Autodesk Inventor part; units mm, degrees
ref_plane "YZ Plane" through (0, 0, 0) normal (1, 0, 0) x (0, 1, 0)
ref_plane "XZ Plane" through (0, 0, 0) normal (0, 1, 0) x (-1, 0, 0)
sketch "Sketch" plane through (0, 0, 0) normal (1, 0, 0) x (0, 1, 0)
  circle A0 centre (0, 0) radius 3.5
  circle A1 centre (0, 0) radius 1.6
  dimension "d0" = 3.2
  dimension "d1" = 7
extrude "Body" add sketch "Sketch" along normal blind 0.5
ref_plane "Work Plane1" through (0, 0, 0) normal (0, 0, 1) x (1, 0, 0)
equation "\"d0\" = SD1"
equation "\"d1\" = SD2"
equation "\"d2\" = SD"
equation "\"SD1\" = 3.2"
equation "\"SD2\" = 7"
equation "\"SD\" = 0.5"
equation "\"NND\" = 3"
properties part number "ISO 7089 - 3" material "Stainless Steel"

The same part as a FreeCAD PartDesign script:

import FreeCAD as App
import Part
import Sketcher
from FreeCAD import Vector
Q = App.Units.Quantity

doc = App.newDocument("Part")
body = doc.addObject("PartDesign::Body", "Body")

# Sketch on YZ plane
sketch1 = body.newObject("Sketcher::SketchObject", "Sketch")
sketch1.AttachmentSupport = (doc.getObject("YZ_Plane"), [""])
sketch1.MapMode = "FlatFace"
sketch1.addGeometry([
    Part.Circle(Vector(0, 0, 0), Vector(0, 0, 1), 3.5),
    Part.Circle(Vector(0, 0, 0), Vector(0, 0, 1), 1.6),
], False)
sketch1.addConstraint([
    Sketcher.Constraint("Coincident", 0, 3, -1, 1),
    Sketcher.Constraint("Coincident", 1, 3, -1, 1),
    Sketcher.Constraint("Diameter", 0, Q("7 mm")),
    Sketcher.Constraint("Diameter", 1, Q("3.2 mm")),
])
pad1 = body.newObject("PartDesign::Pad", "Pad")
pad1.Profile = sketch1
pad1.Length = 0.5

doc.recompute()
